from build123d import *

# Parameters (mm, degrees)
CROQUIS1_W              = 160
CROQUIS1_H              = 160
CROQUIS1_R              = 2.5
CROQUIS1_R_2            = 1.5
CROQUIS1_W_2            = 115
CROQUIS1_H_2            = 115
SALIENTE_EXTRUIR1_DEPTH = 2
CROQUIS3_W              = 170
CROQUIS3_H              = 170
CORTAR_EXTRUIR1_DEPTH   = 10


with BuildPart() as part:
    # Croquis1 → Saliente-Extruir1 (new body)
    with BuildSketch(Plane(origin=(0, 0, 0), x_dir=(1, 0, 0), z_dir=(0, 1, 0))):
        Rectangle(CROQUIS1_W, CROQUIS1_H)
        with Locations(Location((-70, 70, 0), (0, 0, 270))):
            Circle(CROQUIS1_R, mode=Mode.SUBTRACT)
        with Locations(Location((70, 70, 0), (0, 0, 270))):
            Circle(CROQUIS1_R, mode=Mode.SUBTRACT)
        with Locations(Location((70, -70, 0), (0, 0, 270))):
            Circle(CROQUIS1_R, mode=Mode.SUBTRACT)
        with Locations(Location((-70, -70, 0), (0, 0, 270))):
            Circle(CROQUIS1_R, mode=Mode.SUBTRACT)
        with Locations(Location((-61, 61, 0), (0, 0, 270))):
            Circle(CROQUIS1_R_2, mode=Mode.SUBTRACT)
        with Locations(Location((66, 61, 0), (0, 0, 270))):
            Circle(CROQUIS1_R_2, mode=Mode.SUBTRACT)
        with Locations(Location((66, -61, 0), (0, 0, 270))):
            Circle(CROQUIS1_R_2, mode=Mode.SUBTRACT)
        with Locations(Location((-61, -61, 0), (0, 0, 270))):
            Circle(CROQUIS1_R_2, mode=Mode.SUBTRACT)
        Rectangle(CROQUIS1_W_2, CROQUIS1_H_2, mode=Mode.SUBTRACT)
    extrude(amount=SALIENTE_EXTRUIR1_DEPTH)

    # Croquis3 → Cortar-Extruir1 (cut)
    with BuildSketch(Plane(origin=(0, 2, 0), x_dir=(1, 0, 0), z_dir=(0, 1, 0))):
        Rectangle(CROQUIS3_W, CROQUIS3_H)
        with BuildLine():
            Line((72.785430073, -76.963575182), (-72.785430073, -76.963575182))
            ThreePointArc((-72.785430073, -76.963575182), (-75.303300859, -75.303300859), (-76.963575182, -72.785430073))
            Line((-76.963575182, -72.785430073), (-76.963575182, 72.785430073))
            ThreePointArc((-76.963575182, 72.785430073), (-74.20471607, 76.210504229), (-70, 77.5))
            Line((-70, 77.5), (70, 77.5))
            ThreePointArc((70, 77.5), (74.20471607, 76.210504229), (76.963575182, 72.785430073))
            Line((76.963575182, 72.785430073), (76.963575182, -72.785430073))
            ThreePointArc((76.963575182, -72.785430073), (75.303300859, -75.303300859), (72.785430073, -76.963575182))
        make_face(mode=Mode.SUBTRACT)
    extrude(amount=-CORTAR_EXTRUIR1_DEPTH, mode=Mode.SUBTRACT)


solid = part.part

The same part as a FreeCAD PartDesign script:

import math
import FreeCAD as App
import Part
import Sketcher

doc = App.newDocument("Part")
body = doc.addObject("PartDesign::Body", "Body")

# Sketch on XZ plane
sketch1 = body.newObject("Sketcher::SketchObject", "Sketch")
sketch1.AttachmentSupport = (doc.getObject("XZ_Plane"), [""])
sketch1.MapMode = "FlatFace"
sketch1.addGeometry(Part.LineSegment(App.Vector(-80, -80, 0), App.Vector(-80, 80, 0)), False)
sketch1.addGeometry(Part.LineSegment(App.Vector(-80, 80, 0), App.Vector(80, 80, 0)), False)
sketch1.addGeometry(Part.LineSegment(App.Vector(80, 80, 0), App.Vector(80, -80, 0)), False)
sketch1.addGeometry(Part.LineSegment(App.Vector(80, -80, 0), App.Vector(-80, -80, 0)), False)
sketch1.addGeometry(Part.Circle(App.Vector(-70, 70, 0), App.Vector(0, 0, 1), 2.5), False)
sketch1.addGeometry(Part.Circle(App.Vector(-61, 61, 0), App.Vector(0, 0, 1), 1.5), False)
sketch1.addGeometry(Part.Circle(App.Vector(70, 70, 0), App.Vector(0, 0, 1), 2.5), False)
sketch1.addGeometry(Part.Circle(App.Vector(66, 61, 0), App.Vector(0, 0, 1), 1.5), False)
sketch1.addGeometry(Part.Circle(App.Vector(-61, -61, 0), App.Vector(0, 0, 1), 1.5), False)
sketch1.addGeometry(Part.Circle(App.Vector(-70, -70, 0), App.Vector(0, 0, 1), 2.5), False)
sketch1.addGeometry(Part.LineSegment(App.Vector(57.5, 57.5, 0), App.Vector(-57.5, 57.5, 0)), False)
sketch1.addGeometry(Part.LineSegment(App.Vector(-57.5, 57.5, 0), App.Vector(-57.5, -57.5, 0)), False)
sketch1.addGeometry(Part.LineSegment(App.Vector(-57.5, -57.5, 0), App.Vector(57.5, -57.5, 0)), False)
sketch1.addGeometry(Part.LineSegment(App.Vector(57.5, -57.5, 0), App.Vector(57.5, 57.5, 0)), False)
sketch1.addGeometry(Part.Circle(App.Vector(66, -61, 0), App.Vector(0, 0, 1), 1.5), False)
sketch1.addGeometry(Part.Circle(App.Vector(70, -70, 0), App.Vector(0, 0, 1), 2.5), False)
sketch1.addConstraint(Sketcher.Constraint("Coincident", 0, 2, 1, 1))
sketch1.addConstraint(Sketcher.Constraint("Coincident", 1, 2, 2, 1))
sketch1.addConstraint(Sketcher.Constraint("Coincident", 2, 2, 3, 1))
sketch1.addConstraint(Sketcher.Constraint("Coincident", 3, 2, 0, 1))
sketch1.addConstraint(Sketcher.Constraint("Coincident", 10, 2, 11, 1))
sketch1.addConstraint(Sketcher.Constraint("Coincident", 11, 2, 12, 1))
sketch1.addConstraint(Sketcher.Constraint("Coincident", 12, 2, 13, 1))
sketch1.addConstraint(Sketcher.Constraint("Coincident", 13, 2, 10, 1))
sketch1.addConstraint(Sketcher.Constraint("Vertical", 0))
sketch1.addConstraint(Sketcher.Constraint("Horizontal", 1))
sketch1.addConstraint(Sketcher.Constraint("Vertical", 2))
sketch1.addConstraint(Sketcher.Constraint("Horizontal", 3))
sketch1.addConstraint(Sketcher.Constraint("Horizontal", 10))
sketch1.addConstraint(Sketcher.Constraint("Vertical", 11))
sketch1.addConstraint(Sketcher.Constraint("Horizontal", 12))
sketch1.addConstraint(Sketcher.Constraint("Vertical", 13))
sketch1.addConstraint(Sketcher.Constraint("Equal", 4, 6))
sketch1.addConstraint(Sketcher.Constraint("Equal", 5, 7))
sketch1.addConstraint(Sketcher.Constraint("Equal", 7, 8))
sketch1.addConstraint(Sketcher.Constraint("Equal", 6, 9))
sketch1.addConstraint(Sketcher.Constraint("Equal", 8, 14))
sketch1.addConstraint(Sketcher.Constraint("Equal", 9, 15))
sketch1.addConstraint(Sketcher.Constraint("Symmetric", 6, 3, 9, 3, -1, 1))
sketch1.addConstraint(Sketcher.Constraint("Symmetric", 4, 3, 15, 3, -1, 1))
sketch1.addConstraint(Sketcher.Constraint("Symmetric", 0, 2, 2, 2, -1, 1))
sketch1.addConstraint(Sketcher.Constraint("Symmetric", 10, 2, 12, 2, -1, 1))
sketch1.addConstraint(Sketcher.Constraint("Symmetric", 4, 3, 6, 3, -2))
sketch1.addConstraint(Sketcher.Constraint("Symmetric", 5, 3, 8, 3, -1))
sketch1.addConstraint(Sketcher.Constraint("Symmetric", 7, 3, 14, 3, -1))
sketch1.addConstraint(Sketcher.Constraint("Horizontal", 5, 3, 7, 3))
sketch1.addConstraint(Sketcher.Constraint("Equal", 3, 0))
sketch1.addConstraint(Sketcher.Constraint("Equal", 12, 11))
sketch1.addConstraint(Sketcher.Constraint("Diameter", 4, 5.0))
sketch1.addConstraint(Sketcher.Constraint("Diameter", 5, 3.0))
sketch1.addConstraint(Sketcher.Constraint("DistanceX", 1, 1, 1, 2, 160.0))
sketch1.addConstraint(Sketcher.Constraint("DistanceX", 10, 2, 10, 1, 115.0))
sketch1.addConstraint(Sketcher.Constraint("DistanceX", 4, 3, -1, 1, 70.0))
sketch1.addConstraint(Sketcher.Constraint("DistanceY", -1, 1, 4, 3, 70.0))
sketch1.addConstraint(Sketcher.Constraint("DistanceX", 5, 3, -1, 1, 61.0))
sketch1.addConstraint(Sketcher.Constraint("DistanceY", -1, 1, 5, 3, 61.0))
sketch1.addConstraint(Sketcher.Constraint("DistanceX", -1, 1, 7, 3, 66.0))
pad1 = body.newObject("PartDesign::Pad", "Pad")
pad1.Profile = sketch1
pad1.Length = 2
pad1.Reversed = True

# Sketch on XZ plane
sketch2 = body.newObject("Sketcher::SketchObject", "Sketch001")
sketch2.AttachmentSupport = (doc.getObject("XZ_Plane"), [""])
sketch2.MapMode = "FlatFace"
sketch2.AttachmentOffset = App.Placement(App.Vector(0, 0, -2), App.Rotation())
sketch2.addGeometry(Part.LineSegment(App.Vector(-85, -85, 0), App.Vector(-85, 85, 0)), False)
sketch2.addGeometry(Part.LineSegment(App.Vector(-85, 85, 0), App.Vector(85, 85, 0)), False)
sketch2.addGeometry(Part.LineSegment(App.Vector(85, 85, 0), App.Vector(85, -85, 0)), False)
sketch2.addGeometry(Part.LineSegment(App.Vector(85, -85, 0), App.Vector(-85, -85, 0)), False)
sketch2.addGeometry(Part.ArcOfCircle(Part.Circle(App.Vector(70, 70, 0), App.Vector(0, 0, 1), 8), math.radians(22), math.radians(68)), False)
sketch2.addGeometry(Part.LineSegment(App.Vector(73, 77, 0), App.Vector(-73, 77, 0)), False)
sketch2.addGeometry(Part.ArcOfCircle(Part.Circle(App.Vector(-70, 70, 0), App.Vector(0, 0, 1), 8), math.radians(112), math.radians(158)), False)
sketch2.addGeometry(Part.LineSegment(App.Vector(-77, 73, 0), App.Vector(-77, -73, 0)), False)
sketch2.addGeometry(Part.ArcOfCircle(Part.Circle(App.Vector(-70, -70, 0), App.Vector(0, 0, 1), 7), math.radians(-158), math.radians(-90)), False)
sketch2.addGeometry(Part.LineSegment(App.Vector(-70, -78, 0), App.Vector(70, -78, 0)), False)
sketch2.addGeometry(Part.ArcOfCircle(Part.Circle(App.Vector(70, -70, 0), App.Vector(0, 0, 1), 7), math.radians(-90), math.radians(-22)), False)
sketch2.addGeometry(Part.LineSegment(App.Vector(77, -73, 0), App.Vector(77, 73, 0)), False)
sketch2.addConstraint(Sketcher.Constraint("Coincident", 0, 2, 1, 1))
sketch2.addConstraint(Sketcher.Constraint("Coincident", 1, 2, 2, 1))
sketch2.addConstraint(Sketcher.Constraint("Coincident", 2, 2, 3, 1))
sketch2.addConstraint(Sketcher.Constraint("Coincident", 3, 2, 0, 1))
sketch2.addConstraint(Sketcher.Constraint("Coincident", 4, 2, 5, 1))
sketch2.addConstraint(Sketcher.Constraint("Coincident", 5, 2, 6, 1))
sketch2.addConstraint(Sketcher.Constraint("Coincident", 6, 2, 7, 1))
sketch2.addConstraint(Sketcher.Constraint("Coincident", 7, 2, 8, 1))
sketch2.addConstraint(Sketcher.Constraint("Tangent", 8, 2, 9, 1))
sketch2.addConstraint(Sketcher.Constraint("Tangent", 9, 2, 10, 1))
sketch2.addConstraint(Sketcher.Constraint("Coincident", 10, 2, 11, 1))
sketch2.addConstraint(Sketcher.Constraint("Coincident", 11, 2, 4, 1))
sketch2.addConstraint(Sketcher.Constraint("Vertical", 0))
sketch2.addConstraint(Sketcher.Constraint("Horizontal", 1))
sketch2.addConstraint(Sketcher.Constraint("Vertical", 2))
sketch2.addConstraint(Sketcher.Constraint("Horizontal", 3))
sketch2.addConstraint(Sketcher.Constraint("Horizontal", 5))
sketch2.addConstraint(Sketcher.Constraint("Vertical", 7))
sketch2.addConstraint(Sketcher.Constraint("Horizontal", 9))
sketch2.addConstraint(Sketcher.Constraint("Vertical", 11))
sketch2.addConstraint(Sketcher.Constraint("Equal", 4, 6))
sketch2.addConstraint(Sketcher.Constraint("Equal", 6, 8))
sketch2.addConstraint(Sketcher.Constraint("Equal", 8, 10))
sketch2.addConstraint(Sketcher.Constraint("Symmetric", 4, 3, 8, 3, -1, 1))
sketch2.addConstraint(Sketcher.Constraint("Symmetric", 6, 3, 10, 3, -1, 1))
sketch2.addConstraint(Sketcher.Constraint("Symmetric", 0, 2, 2, 2, -1, 1))
sketch2.addConstraint(Sketcher.Constraint("Symmetric", 7, 2, 10, 2, -2))
sketch2.addConstraint(Sketcher.Constraint("Equal", 3, 0))
sketch2.addConstraint(Sketcher.Constraint("Equal", 5, 7))
sketch2.addConstraint(Sketcher.Constraint("Radius", 4, 7.5))
sketch2.addConstraint(Sketcher.Constraint("DistanceX", 1, 1, 1, 2, 170.0))
sketch2.addConstraint(Sketcher.Constraint("DistanceX", 9, 1, 9, 2, 140.0))
sketch2.addConstraint(Sketcher.Constraint("DistanceY", -1, 1, 4, 3, 70.0))
sketch2.addConstraint(Sketcher.Constraint("DistanceX", 5, 2, 5, 1, 145.57086))
pocket1 = body.newObject("PartDesign::Pocket", "Pocket")
pocket1.Profile = sketch2
pocket1.Length = 10
pocket1.Reversed = True

doc.recompute()
